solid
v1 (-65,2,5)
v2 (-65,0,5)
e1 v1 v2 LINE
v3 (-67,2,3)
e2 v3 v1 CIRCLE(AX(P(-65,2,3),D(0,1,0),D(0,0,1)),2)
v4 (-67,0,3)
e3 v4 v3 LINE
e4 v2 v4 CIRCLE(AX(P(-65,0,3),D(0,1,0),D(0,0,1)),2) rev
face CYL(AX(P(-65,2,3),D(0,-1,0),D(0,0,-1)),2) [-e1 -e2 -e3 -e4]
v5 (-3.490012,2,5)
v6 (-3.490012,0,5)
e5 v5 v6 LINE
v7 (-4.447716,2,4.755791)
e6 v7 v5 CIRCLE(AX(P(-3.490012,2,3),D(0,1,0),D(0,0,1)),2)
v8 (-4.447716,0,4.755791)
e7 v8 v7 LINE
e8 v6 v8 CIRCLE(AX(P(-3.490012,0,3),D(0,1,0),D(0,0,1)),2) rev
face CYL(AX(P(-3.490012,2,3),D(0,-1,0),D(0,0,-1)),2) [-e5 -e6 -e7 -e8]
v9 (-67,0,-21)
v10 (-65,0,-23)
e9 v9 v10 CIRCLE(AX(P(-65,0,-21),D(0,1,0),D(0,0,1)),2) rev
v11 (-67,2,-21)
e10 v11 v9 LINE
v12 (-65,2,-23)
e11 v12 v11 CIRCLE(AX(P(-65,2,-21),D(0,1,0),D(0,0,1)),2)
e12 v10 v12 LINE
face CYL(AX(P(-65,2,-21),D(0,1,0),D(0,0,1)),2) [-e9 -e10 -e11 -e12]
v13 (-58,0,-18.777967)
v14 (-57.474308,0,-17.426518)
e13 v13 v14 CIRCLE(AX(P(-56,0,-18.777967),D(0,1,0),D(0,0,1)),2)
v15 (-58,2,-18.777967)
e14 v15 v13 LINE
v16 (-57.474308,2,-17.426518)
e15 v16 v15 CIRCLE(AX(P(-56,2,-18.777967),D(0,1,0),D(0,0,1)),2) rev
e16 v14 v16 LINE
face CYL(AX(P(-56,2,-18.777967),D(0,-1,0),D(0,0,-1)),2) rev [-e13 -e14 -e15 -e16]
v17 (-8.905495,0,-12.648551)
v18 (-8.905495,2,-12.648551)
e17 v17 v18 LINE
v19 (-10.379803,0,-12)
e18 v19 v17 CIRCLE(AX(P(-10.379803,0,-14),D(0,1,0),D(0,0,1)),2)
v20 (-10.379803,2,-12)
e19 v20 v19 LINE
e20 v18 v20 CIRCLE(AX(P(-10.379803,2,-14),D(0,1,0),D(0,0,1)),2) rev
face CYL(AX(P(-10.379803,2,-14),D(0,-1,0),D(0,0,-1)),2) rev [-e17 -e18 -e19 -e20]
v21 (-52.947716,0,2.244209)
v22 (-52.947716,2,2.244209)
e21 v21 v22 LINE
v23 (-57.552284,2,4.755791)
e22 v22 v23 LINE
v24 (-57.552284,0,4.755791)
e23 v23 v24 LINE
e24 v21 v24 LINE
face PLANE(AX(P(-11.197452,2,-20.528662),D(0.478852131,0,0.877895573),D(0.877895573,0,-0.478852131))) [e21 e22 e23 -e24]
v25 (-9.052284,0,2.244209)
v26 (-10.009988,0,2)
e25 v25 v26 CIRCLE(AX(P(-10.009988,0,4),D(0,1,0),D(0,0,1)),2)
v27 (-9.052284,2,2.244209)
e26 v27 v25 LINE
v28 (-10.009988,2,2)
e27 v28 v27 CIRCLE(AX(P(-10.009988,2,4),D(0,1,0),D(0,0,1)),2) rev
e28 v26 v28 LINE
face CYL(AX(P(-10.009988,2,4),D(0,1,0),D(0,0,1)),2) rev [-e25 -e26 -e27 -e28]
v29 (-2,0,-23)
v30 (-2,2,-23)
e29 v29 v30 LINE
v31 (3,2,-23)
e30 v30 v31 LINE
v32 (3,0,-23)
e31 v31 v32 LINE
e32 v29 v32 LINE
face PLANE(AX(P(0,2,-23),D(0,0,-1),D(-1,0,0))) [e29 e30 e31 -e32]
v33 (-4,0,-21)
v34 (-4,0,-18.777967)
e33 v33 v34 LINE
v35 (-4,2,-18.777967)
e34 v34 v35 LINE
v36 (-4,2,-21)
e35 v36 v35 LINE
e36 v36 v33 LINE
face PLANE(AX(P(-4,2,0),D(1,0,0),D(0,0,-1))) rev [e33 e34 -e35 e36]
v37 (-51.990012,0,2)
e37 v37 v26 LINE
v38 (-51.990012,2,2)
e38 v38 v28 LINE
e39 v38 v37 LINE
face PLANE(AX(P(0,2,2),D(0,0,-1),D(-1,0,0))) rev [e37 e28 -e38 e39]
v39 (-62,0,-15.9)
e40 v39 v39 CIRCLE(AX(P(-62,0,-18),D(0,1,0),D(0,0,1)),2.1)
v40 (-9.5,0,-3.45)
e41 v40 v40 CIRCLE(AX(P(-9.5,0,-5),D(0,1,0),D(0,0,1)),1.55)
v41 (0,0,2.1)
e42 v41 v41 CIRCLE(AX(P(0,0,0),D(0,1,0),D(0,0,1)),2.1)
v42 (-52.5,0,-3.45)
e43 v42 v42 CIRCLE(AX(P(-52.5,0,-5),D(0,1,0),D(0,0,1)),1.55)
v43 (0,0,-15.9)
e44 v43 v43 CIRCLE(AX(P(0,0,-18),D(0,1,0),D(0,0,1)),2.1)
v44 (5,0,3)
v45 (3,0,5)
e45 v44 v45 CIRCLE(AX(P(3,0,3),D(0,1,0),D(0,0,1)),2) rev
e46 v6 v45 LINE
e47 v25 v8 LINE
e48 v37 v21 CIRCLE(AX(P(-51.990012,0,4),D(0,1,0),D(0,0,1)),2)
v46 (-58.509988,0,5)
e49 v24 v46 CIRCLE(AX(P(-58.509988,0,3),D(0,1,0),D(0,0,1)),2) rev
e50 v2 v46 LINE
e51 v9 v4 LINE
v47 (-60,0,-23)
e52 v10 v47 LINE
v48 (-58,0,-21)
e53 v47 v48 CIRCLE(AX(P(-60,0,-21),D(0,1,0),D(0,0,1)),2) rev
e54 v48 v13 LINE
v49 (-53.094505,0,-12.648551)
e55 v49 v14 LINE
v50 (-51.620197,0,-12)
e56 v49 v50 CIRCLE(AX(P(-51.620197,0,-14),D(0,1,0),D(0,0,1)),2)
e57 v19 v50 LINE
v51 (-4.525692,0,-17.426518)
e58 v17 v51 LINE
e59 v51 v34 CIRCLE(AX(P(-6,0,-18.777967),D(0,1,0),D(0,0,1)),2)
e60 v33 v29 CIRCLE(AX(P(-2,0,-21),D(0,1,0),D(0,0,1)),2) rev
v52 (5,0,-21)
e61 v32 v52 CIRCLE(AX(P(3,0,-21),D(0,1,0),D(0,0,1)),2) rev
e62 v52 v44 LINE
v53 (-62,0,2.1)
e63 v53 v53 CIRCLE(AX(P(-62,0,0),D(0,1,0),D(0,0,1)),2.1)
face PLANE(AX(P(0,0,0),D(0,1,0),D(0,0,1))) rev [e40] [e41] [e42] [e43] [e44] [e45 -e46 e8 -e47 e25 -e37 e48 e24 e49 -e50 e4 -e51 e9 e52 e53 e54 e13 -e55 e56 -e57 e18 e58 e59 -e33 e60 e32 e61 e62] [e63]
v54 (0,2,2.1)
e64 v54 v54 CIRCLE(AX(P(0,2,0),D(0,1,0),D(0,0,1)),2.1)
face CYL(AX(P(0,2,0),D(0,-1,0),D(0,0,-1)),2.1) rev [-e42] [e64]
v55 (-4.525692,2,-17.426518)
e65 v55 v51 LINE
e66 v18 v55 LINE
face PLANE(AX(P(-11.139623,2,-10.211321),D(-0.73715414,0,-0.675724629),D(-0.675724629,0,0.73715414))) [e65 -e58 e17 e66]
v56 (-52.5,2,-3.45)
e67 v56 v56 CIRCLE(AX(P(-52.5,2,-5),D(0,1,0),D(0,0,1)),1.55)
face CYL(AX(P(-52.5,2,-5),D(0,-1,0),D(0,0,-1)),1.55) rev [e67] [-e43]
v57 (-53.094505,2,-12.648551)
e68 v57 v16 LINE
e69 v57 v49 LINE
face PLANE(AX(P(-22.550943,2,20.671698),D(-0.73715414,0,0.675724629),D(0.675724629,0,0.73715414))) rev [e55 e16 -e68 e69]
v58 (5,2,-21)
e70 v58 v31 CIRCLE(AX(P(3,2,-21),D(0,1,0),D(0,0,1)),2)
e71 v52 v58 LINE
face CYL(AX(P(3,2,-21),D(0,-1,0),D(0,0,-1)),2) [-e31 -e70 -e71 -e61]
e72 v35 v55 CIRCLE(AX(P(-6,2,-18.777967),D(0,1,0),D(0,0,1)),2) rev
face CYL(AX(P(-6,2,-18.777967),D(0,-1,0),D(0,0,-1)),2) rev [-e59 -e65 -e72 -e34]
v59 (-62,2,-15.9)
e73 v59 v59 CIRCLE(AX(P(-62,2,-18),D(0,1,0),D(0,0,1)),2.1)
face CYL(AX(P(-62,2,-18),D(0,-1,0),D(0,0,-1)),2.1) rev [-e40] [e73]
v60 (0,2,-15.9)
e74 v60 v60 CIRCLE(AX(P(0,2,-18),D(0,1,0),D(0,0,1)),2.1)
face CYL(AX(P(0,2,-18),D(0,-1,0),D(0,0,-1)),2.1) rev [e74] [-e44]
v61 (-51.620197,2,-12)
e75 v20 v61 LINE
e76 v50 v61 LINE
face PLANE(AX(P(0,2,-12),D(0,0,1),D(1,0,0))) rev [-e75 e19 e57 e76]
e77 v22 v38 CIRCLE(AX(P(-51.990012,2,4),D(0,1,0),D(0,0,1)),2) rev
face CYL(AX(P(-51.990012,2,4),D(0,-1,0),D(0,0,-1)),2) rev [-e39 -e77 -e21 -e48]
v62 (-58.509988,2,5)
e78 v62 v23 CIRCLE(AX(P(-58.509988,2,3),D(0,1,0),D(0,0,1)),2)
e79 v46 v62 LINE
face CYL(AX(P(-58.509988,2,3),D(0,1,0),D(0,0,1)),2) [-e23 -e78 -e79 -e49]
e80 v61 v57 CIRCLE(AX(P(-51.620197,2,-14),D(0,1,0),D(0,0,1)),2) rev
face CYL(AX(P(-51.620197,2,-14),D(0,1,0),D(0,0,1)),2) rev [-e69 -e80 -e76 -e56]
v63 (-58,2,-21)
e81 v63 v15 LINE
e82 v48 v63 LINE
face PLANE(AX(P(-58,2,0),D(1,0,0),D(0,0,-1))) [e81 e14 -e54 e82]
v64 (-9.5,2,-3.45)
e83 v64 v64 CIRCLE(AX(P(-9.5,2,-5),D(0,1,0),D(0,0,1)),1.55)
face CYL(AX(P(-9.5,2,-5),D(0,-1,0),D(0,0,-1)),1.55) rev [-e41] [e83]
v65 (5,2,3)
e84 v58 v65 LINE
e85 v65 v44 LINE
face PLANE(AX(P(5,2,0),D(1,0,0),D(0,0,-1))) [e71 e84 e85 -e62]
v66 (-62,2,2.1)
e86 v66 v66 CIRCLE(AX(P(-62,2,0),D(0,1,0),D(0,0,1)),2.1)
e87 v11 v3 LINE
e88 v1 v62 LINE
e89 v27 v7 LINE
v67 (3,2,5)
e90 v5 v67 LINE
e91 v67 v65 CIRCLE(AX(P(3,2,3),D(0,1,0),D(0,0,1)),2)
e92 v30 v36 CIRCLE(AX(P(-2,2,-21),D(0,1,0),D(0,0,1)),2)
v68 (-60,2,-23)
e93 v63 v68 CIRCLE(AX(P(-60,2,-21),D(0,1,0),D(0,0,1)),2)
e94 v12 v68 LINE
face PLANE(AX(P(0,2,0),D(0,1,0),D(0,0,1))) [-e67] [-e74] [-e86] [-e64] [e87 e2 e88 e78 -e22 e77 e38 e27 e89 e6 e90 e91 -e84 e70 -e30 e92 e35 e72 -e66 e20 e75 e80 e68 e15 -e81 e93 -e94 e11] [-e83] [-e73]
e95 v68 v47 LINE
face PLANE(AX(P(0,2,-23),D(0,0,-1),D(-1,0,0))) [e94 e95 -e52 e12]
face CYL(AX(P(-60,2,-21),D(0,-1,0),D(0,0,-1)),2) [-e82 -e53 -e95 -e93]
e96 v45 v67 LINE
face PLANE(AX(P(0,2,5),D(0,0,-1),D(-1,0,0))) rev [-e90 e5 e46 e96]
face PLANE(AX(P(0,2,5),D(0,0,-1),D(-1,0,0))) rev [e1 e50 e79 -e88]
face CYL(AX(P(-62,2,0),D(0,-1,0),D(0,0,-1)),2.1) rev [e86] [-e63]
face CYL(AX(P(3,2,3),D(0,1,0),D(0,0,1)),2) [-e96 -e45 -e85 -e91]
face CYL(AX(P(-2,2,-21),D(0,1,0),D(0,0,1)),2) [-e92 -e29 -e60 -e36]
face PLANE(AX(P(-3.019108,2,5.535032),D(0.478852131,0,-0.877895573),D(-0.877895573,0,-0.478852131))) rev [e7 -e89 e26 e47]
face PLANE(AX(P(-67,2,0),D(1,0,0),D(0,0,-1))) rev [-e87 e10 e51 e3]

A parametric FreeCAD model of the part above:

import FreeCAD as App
import Part
import Sketcher
from FreeCAD import Vector
Q = App.Units.Quantity


def edges_at(feature, points):
    """Names of the edges that pass closest to the given points."""
    edges = feature.Shape.Edges
    near = lambda p: min(range(len(edges)), key=lambda i: edges[i].distToShape(Part.Vertex(*p))[0])
    return sorted({f"Edge{near(p) + 1}" for p in points})

doc = App.newDocument("Part")
body = doc.addObject("PartDesign::Body", "Body")

# Sketch on XZ plane
sketch1 = body.newObject("Sketcher::SketchObject", "Sketch")
sketch1.AttachmentSupport = (doc.getObject("XZ_Plane"), [""])
sketch1.MapMode = "FlatFace"
sketch1.addGeometry([
    Part.LineSegment(Vector(-67, 5, 0), Vector(-58, 5, 0)),  # 0
    Part.LineSegment(Vector(-58, 5, 0), Vector(-52.5, 2, 0)),  # 1
    Part.LineSegment(Vector(-52.5, 2, 0), Vector(-9.5, 2, 0)),  # 2
    Part.LineSegment(Vector(-9.5, 2, 0), Vector(-4, 5, 0)),  # 3
    Part.LineSegment(Vector(-4, 5, 0), Vector(5, 5, 0)),  # 4
    Part.LineSegment(Vector(5, 5, 0), Vector(5, -23, 0)),  # 5
    Part.LineSegment(Vector(5, -23, 0), Vector(-4, -23, 0)),  # 6
    Part.LineSegment(Vector(-4, -23, 0), Vector(-4, -18, 0)),  # 7
    Part.LineSegment(Vector(-4, -18, 0), Vector(-9.5, -12, 0)),  # 8
    Part.LineSegment(Vector(-9.5, -12, 0), Vector(-52.5, -12, 0)),  # 9
    Part.LineSegment(Vector(-52.5, -12, 0), Vector(-58, -18, 0)),  # 10
    Part.LineSegment(Vector(-58, -18, 0), Vector(-58, -23, 0)),  # 11
    Part.LineSegment(Vector(-58, -23, 0), Vector(-67, -23, 0)),  # 12
    Part.LineSegment(Vector(-67, -23, 0), Vector(-67, 5, 0)),  # 13
    Part.Circle(Vector(-62, 0, 0), Vector(0, 0, 1), 2.1),  # 14
    Part.Circle(Vector(-52.5, -5, 0), Vector(0, 0, 1), 1.6),  # 15
    Part.Circle(Vector(0, 0, 0), Vector(0, 0, 1), 2.1),  # 16
    Part.Circle(Vector(-9.5, -5, 0), Vector(0, 0, 1), 1.6),  # 17
    Part.Circle(Vector(-62, -18, 0), Vector(0, 0, 1), 2.1),  # 18
    Part.Circle(Vector(0, -18, 0), Vector(0, 0, 1), 2.1),  # 19
], False)
sketch1.addConstraint([
    Sketcher.Constraint("Coincident", 0, 2, 1, 1),
    Sketcher.Constraint("Coincident", 1, 2, 2, 1),
    Sketcher.Constraint("Coincident", 2, 2, 3, 1),
    Sketcher.Constraint("Coincident", 3, 2, 4, 1),
    Sketcher.Constraint("Coincident", 4, 2, 5, 1),
    Sketcher.Constraint("Coincident", 5, 2, 6, 1),
    Sketcher.Constraint("Coincident", 6, 2, 7, 1),
    Sketcher.Constraint("Coincident", 7, 2, 8, 1),
    Sketcher.Constraint("Coincident", 8, 2, 9, 1),
    Sketcher.Constraint("Coincident", 9, 2, 10, 1),
    Sketcher.Constraint("Coincident", 10, 2, 11, 1),
    Sketcher.Constraint("Coincident", 11, 2, 12, 1),
    Sketcher.Constraint("Coincident", 12, 2, 13, 1),
    Sketcher.Constraint("Coincident", 13, 2, 0, 1),
    Sketcher.Constraint("Horizontal", 0),
    Sketcher.Constraint("Horizontal", 2),
    Sketcher.Constraint("Horizontal", 4),
    Sketcher.Constraint("Vertical", 5),
    Sketcher.Constraint("Horizontal", 6),
    Sketcher.Constraint("Vertical", 7),
    Sketcher.Constraint("Horizontal", 9),
    Sketcher.Constraint("Vertical", 11),
    Sketcher.Constraint("Horizontal", 12),
    Sketcher.Constraint("Vertical", 13),
    Sketcher.Constraint("Coincident", 16, 3, -1, 1),
    Sketcher.Constraint("Equal", 14, 16),
    Sketcher.Constraint("Equal", 15, 17),
    Sketcher.Constraint("Equal", 16, 18),
    Sketcher.Constraint("Equal", 18, 19),
    Sketcher.Constraint("PointOnObject", 14, 3, -1),
    Sketcher.Constraint("PointOnObject", 19, 3, -2),
    Sketcher.Constraint("Horizontal", 15, 3, 17, 3),
    Sketcher.Constraint("Horizontal", 18, 3, 19, 3),
    Sketcher.Constraint("Horizontal", 0, 2, 3, 2),
    Sketcher.Constraint("Horizontal", 19, 3, 7, 2),
    Sketcher.Constraint("Horizontal", 7, 2, 10, 2),
    Sketcher.Constraint("Horizontal", 6, 2, 11, 2),
    Sketcher.Constraint("Vertical", 14, 3, 18, 3),
    Sketcher.Constraint("Vertical", 15, 3, 1, 2),
    Sketcher.Constraint("Vertical", 17, 3, 2, 2),
    Sketcher.Constraint("Vertical", 3, 2, 6, 2),
    Sketcher.Constraint("Vertical", 2, 2, 8, 2),
    Sketcher.Constraint("Vertical", 1, 2, 9, 2),
    Sketcher.Constraint("Vertical", 0, 2, 10, 2),
    Sketcher.Constraint("Equal", 0, 4),
    Sketcher.Constraint("Equal", 1, 3),
    Sketcher.Constraint("Diameter", 14, Q("4.2 mm")),
    Sketcher.Constraint("Diameter", 15, Q("3.1 mm")),
    Sketcher.Constraint("DistanceX", 0, 1, 0, 2, Q("9 mm")),
    Sketcher.Constraint("DistanceX", 2, 1, 2, 2, Q("43 mm")),
    Sketcher.Constraint("DistanceY", 5, 2, 5, 1, Q("28 mm")),
    Sketcher.Constraint("DistanceY", 7, 1, 7, 2, Q("5 mm")),
    Sketcher.Constraint("DistanceX", 14, 3, -1, 1, Q("62 mm")),
    Sketcher.Constraint("DistanceY", 15, 3, -1, 1, Q("5 mm")),
    Sketcher.Constraint("DistanceY", 18, 3, -1, 1, Q("18 mm")),
    Sketcher.Constraint("DistanceX", 0, 2, -1, 1, Q("58 mm")),
    Sketcher.Constraint("DistanceY", -1, 1, 1, 2, Q("2 mm")),
    Sketcher.Constraint("DistanceX", 3, 2, -1, 1, Q("4 mm")),
    Sketcher.Constraint("DistanceY", 8, 2, -1, 1, Q("12 mm")),
])
pad1 = body.newObject("PartDesign::Pad", "Pad")
pad1.Profile = sketch1
pad1.Length = 2
pad1.Reversed = True
doc.recompute()

fillet = body.newObject("PartDesign::Fillet", "Fillet")
fillet.Base = (pad1, edges_at(pad1, [
    (-4, 1, 5),
    (-9.5, 1, 2),
    (-52.5, 1, 2),
    (-58, 1, 5),
    (-67, 1, 5),
    (-67, 1, -23),
    (-58, 1, -23),
    (-58, 1, -18),
    (-52.5, 1, -12),
    (-9.5, 1, -12),
    (-4, 1, -18),
    (-4, 1, -23),
    (5, 1, -23),
    (5, 1, 5),
]))
fillet.Radius = 2

doc.recompute()
